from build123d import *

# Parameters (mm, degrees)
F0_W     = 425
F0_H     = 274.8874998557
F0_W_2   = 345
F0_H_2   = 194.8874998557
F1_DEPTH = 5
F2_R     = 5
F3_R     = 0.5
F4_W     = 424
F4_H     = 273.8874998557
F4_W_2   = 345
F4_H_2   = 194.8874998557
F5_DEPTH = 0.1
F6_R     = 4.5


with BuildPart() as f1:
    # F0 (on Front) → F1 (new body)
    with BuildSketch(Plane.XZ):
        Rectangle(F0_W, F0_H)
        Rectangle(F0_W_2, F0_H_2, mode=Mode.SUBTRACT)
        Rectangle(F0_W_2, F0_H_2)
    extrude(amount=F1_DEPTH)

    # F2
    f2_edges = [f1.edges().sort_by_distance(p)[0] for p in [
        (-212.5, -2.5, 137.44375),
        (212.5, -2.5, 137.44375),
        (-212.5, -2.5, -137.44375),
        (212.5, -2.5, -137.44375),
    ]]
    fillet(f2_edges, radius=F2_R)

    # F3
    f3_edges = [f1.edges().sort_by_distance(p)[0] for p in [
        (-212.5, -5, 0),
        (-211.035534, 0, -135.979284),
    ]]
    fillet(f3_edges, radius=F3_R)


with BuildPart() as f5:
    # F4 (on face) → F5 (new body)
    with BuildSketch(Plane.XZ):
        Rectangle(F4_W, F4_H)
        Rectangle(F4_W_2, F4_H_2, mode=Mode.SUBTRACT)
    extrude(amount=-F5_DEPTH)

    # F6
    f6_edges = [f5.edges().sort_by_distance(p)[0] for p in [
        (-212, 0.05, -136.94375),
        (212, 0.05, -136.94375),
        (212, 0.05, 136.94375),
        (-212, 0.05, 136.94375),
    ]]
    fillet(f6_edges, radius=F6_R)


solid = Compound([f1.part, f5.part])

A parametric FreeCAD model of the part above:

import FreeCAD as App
import Part
import Sketcher
from FreeCAD import Vector


def edges_at(feature, points):
    """Names of the edges that pass closest to the given points."""
    edges = feature.Shape.Edges
    near = lambda p: min(range(len(edges)), key=lambda i: edges[i].distToShape(Part.Vertex(*p))[0])
    return sorted({f"Edge{near(p) + 1}" for p in points})

doc = App.newDocument("Part")
params = doc.addObject("Spreadsheet::Sheet", "Params")
for row, (alias, value) in enumerate([
    ("sketch1_width", "425 mm"),
    ("pad1_length", "5 mm"),
    ("fillet_radius", "5 mm"),
    ("fillet2_radius", "0.5 mm"),
    ("sketch2_width", "424 mm"),
    ("sketch2_width2", "345 mm"),
    ("pad2_length", "0.1 mm"),
    ("fillet3_radius", "4.5 mm"),
], start=1):
    params.set(f"A{row}", alias)
    params.set(f"B{row}", "=" + value)
    params.setAlias(f"B{row}", alias)

body = doc.addObject("PartDesign::Body", "Body")

# Sketch on XZ plane
sketch1 = body.newObject("Sketcher::SketchObject", "Sketch")
sketch1.AttachmentSupport = (doc.getObject("XZ_Plane"), [""])
sketch1.MapMode = "FlatFace"
sketch1.addGeometry([
    Part.LineSegment(Vector(-212, 137, 0), Vector(-212, -137, 0)),
    Part.LineSegment(Vector(-212, -137, 0), Vector(212, -137, 0)),
    Part.LineSegment(Vector(212, -137, 0), Vector(212, 137, 0)),
    Part.LineSegment(Vector(212, 137, 0), Vector(-212, 137, 0)),
], False)
sketch1.addConstraint([
    Sketcher.Constraint("Coincident", 0, 2, 1, 1),
    Sketcher.Constraint("Coincident", 1, 2, 2, 1),
    Sketcher.Constraint("Coincident", 2, 2, 3, 1),
    Sketcher.Constraint("Coincident", 3, 2, 0, 1),
    Sketcher.Constraint("Vertical", 0),
    Sketcher.Constraint("Horizontal", 1),
    Sketcher.Constraint("Vertical", 2),
    Sketcher.Constraint("Horizontal", 3),
    Sketcher.Constraint("Symmetric", 0, 2, 2, 2, -1, 1),
    Sketcher.Constraint("DistanceX", 1, 1, 1, 2, 425.0),
    Sketcher.Constraint("DistanceY", 0, 2, 0, 1, 274.8875),
])
sketch1.setExpression("Constraints[9]", "Params.sketch1_width")
pad1 = body.newObject("PartDesign::Pad", "Pad")
pad1.Profile = sketch1
pad1.setExpression("Length", "Params.pad1_length")
doc.recompute()

fillet = body.newObject("PartDesign::Fillet", "Fillet")
fillet.Base = (pad1, edges_at(pad1, [
    (-212.5, -2.5, 137.444),
    (212.5, -2.5, 137.444),
    (-212.5, -2.5, -137.444),
    (212.5, -2.5, -137.444),
]))
fillet.setExpression("Radius", "Params.fillet_radius")
doc.recompute()

fillet2 = body.newObject("PartDesign::Fillet", "Fillet001")
fillet2.Base = (fillet, edges_at(fillet, [(-212.5, -5, 0), (-211.036, 0, -135.979)]))
fillet2.setExpression("Radius", "Params.fillet2_radius")
body2 = doc.addObject("PartDesign::Body", "Body001")

# Sketch on XZ plane
sketch2 = body2.newObject("Sketcher::SketchObject", "Sketch001")
sketch2.AttachmentSupport = (doc.getObject("XZ_Plane001"), [""])
sketch2.MapMode = "FlatFace"
sketch2.addGeometry([
    Part.LineSegment(Vector(-212, 137, 0), Vector(-212, -137, 0)),  # 0
    Part.LineSegment(Vector(-212, -137, 0), Vector(212, -137, 0)),  # 1
    Part.LineSegment(Vector(212, -137, 0), Vector(212, 137, 0)),  # 2
    Part.LineSegment(Vector(212, 137, 0), Vector(-212, 137, 0)),  # 3
    Part.LineSegment(Vector(172, -97, 0), Vector(-172, -97, 0)),  # 4
    Part.LineSegment(Vector(-172, -97, 0), Vector(-172, 97, 0)),  # 5
    Part.LineSegment(Vector(-172, 97, 0), Vector(172, 97, 0)),  # 6
    Part.LineSegment(Vector(172, 97, 0), Vector(172, -97, 0)),  # 7
], False)
sketch2.addConstraint([
    Sketcher.Constraint("Coincident", 0, 2, 1, 1),
    Sketcher.Constraint("Coincident", 1, 2, 2, 1),
    Sketcher.Constraint("Coincident", 2, 2, 3, 1),
    Sketcher.Constraint("Coincident", 3, 2, 0, 1),
    Sketcher.Constraint("Coincident", 4, 2, 5, 1),
    Sketcher.Constraint("Coincident", 5, 2, 6, 1),
    Sketcher.Constraint("Coincident", 6, 2, 7, 1),
    Sketcher.Constraint("Coincident", 7, 2, 4, 1),
    Sketcher.Constraint("Vertical", 0),
    Sketcher.Constraint("Horizontal", 1),
    Sketcher.Constraint("Vertical", 2),
    Sketcher.Constraint("Horizontal", 3),
    Sketcher.Constraint("Horizontal", 4),
    Sketcher.Constraint("Vertical", 5),
    Sketcher.Constraint("Horizontal", 6),
    Sketcher.Constraint("Vertical", 7),
    Sketcher.Constraint("Symmetric", 0, 2, 2, 2, -1, 1),
    Sketcher.Constraint("Symmetric", 4, 2, 6, 2, -1, 1),
    Sketcher.Constraint("DistanceX", 1, 1, 1, 2, 424.0),
    Sketcher.Constraint("DistanceX", 4, 2, 4, 1, 345.0),
    Sketcher.Constraint("DistanceY", 0, 2, 4, 2, 39.5),
    Sketcher.Constraint("DistanceY", 0, 2, 0, 1, 273.8875),
])
sketch2.setExpression("Constraints[18]", "Params.sketch2_width")
sketch2.setExpression("Constraints[19]", "Params.sketch2_width2")
pad2 = body2.newObject("PartDesign::Pad", "Pad001")
pad2.Profile = sketch2
pad2.setExpression("Length", "Params.pad2_length")
pad2.Reversed = True
doc.recompute()

fillet3 = body2.newObject("PartDesign::Fillet", "Fillet002")
fillet3.Base = (pad2, edges_at(pad2, [
    (-212, 0.05, -136.944),
    (212, 0.05, -136.944),
    (212, 0.05, 136.944),
    (-212, 0.05, 136.944),
]))
fillet3.setExpression("Radius", "Params.fillet3_radius")

doc.recompute()
